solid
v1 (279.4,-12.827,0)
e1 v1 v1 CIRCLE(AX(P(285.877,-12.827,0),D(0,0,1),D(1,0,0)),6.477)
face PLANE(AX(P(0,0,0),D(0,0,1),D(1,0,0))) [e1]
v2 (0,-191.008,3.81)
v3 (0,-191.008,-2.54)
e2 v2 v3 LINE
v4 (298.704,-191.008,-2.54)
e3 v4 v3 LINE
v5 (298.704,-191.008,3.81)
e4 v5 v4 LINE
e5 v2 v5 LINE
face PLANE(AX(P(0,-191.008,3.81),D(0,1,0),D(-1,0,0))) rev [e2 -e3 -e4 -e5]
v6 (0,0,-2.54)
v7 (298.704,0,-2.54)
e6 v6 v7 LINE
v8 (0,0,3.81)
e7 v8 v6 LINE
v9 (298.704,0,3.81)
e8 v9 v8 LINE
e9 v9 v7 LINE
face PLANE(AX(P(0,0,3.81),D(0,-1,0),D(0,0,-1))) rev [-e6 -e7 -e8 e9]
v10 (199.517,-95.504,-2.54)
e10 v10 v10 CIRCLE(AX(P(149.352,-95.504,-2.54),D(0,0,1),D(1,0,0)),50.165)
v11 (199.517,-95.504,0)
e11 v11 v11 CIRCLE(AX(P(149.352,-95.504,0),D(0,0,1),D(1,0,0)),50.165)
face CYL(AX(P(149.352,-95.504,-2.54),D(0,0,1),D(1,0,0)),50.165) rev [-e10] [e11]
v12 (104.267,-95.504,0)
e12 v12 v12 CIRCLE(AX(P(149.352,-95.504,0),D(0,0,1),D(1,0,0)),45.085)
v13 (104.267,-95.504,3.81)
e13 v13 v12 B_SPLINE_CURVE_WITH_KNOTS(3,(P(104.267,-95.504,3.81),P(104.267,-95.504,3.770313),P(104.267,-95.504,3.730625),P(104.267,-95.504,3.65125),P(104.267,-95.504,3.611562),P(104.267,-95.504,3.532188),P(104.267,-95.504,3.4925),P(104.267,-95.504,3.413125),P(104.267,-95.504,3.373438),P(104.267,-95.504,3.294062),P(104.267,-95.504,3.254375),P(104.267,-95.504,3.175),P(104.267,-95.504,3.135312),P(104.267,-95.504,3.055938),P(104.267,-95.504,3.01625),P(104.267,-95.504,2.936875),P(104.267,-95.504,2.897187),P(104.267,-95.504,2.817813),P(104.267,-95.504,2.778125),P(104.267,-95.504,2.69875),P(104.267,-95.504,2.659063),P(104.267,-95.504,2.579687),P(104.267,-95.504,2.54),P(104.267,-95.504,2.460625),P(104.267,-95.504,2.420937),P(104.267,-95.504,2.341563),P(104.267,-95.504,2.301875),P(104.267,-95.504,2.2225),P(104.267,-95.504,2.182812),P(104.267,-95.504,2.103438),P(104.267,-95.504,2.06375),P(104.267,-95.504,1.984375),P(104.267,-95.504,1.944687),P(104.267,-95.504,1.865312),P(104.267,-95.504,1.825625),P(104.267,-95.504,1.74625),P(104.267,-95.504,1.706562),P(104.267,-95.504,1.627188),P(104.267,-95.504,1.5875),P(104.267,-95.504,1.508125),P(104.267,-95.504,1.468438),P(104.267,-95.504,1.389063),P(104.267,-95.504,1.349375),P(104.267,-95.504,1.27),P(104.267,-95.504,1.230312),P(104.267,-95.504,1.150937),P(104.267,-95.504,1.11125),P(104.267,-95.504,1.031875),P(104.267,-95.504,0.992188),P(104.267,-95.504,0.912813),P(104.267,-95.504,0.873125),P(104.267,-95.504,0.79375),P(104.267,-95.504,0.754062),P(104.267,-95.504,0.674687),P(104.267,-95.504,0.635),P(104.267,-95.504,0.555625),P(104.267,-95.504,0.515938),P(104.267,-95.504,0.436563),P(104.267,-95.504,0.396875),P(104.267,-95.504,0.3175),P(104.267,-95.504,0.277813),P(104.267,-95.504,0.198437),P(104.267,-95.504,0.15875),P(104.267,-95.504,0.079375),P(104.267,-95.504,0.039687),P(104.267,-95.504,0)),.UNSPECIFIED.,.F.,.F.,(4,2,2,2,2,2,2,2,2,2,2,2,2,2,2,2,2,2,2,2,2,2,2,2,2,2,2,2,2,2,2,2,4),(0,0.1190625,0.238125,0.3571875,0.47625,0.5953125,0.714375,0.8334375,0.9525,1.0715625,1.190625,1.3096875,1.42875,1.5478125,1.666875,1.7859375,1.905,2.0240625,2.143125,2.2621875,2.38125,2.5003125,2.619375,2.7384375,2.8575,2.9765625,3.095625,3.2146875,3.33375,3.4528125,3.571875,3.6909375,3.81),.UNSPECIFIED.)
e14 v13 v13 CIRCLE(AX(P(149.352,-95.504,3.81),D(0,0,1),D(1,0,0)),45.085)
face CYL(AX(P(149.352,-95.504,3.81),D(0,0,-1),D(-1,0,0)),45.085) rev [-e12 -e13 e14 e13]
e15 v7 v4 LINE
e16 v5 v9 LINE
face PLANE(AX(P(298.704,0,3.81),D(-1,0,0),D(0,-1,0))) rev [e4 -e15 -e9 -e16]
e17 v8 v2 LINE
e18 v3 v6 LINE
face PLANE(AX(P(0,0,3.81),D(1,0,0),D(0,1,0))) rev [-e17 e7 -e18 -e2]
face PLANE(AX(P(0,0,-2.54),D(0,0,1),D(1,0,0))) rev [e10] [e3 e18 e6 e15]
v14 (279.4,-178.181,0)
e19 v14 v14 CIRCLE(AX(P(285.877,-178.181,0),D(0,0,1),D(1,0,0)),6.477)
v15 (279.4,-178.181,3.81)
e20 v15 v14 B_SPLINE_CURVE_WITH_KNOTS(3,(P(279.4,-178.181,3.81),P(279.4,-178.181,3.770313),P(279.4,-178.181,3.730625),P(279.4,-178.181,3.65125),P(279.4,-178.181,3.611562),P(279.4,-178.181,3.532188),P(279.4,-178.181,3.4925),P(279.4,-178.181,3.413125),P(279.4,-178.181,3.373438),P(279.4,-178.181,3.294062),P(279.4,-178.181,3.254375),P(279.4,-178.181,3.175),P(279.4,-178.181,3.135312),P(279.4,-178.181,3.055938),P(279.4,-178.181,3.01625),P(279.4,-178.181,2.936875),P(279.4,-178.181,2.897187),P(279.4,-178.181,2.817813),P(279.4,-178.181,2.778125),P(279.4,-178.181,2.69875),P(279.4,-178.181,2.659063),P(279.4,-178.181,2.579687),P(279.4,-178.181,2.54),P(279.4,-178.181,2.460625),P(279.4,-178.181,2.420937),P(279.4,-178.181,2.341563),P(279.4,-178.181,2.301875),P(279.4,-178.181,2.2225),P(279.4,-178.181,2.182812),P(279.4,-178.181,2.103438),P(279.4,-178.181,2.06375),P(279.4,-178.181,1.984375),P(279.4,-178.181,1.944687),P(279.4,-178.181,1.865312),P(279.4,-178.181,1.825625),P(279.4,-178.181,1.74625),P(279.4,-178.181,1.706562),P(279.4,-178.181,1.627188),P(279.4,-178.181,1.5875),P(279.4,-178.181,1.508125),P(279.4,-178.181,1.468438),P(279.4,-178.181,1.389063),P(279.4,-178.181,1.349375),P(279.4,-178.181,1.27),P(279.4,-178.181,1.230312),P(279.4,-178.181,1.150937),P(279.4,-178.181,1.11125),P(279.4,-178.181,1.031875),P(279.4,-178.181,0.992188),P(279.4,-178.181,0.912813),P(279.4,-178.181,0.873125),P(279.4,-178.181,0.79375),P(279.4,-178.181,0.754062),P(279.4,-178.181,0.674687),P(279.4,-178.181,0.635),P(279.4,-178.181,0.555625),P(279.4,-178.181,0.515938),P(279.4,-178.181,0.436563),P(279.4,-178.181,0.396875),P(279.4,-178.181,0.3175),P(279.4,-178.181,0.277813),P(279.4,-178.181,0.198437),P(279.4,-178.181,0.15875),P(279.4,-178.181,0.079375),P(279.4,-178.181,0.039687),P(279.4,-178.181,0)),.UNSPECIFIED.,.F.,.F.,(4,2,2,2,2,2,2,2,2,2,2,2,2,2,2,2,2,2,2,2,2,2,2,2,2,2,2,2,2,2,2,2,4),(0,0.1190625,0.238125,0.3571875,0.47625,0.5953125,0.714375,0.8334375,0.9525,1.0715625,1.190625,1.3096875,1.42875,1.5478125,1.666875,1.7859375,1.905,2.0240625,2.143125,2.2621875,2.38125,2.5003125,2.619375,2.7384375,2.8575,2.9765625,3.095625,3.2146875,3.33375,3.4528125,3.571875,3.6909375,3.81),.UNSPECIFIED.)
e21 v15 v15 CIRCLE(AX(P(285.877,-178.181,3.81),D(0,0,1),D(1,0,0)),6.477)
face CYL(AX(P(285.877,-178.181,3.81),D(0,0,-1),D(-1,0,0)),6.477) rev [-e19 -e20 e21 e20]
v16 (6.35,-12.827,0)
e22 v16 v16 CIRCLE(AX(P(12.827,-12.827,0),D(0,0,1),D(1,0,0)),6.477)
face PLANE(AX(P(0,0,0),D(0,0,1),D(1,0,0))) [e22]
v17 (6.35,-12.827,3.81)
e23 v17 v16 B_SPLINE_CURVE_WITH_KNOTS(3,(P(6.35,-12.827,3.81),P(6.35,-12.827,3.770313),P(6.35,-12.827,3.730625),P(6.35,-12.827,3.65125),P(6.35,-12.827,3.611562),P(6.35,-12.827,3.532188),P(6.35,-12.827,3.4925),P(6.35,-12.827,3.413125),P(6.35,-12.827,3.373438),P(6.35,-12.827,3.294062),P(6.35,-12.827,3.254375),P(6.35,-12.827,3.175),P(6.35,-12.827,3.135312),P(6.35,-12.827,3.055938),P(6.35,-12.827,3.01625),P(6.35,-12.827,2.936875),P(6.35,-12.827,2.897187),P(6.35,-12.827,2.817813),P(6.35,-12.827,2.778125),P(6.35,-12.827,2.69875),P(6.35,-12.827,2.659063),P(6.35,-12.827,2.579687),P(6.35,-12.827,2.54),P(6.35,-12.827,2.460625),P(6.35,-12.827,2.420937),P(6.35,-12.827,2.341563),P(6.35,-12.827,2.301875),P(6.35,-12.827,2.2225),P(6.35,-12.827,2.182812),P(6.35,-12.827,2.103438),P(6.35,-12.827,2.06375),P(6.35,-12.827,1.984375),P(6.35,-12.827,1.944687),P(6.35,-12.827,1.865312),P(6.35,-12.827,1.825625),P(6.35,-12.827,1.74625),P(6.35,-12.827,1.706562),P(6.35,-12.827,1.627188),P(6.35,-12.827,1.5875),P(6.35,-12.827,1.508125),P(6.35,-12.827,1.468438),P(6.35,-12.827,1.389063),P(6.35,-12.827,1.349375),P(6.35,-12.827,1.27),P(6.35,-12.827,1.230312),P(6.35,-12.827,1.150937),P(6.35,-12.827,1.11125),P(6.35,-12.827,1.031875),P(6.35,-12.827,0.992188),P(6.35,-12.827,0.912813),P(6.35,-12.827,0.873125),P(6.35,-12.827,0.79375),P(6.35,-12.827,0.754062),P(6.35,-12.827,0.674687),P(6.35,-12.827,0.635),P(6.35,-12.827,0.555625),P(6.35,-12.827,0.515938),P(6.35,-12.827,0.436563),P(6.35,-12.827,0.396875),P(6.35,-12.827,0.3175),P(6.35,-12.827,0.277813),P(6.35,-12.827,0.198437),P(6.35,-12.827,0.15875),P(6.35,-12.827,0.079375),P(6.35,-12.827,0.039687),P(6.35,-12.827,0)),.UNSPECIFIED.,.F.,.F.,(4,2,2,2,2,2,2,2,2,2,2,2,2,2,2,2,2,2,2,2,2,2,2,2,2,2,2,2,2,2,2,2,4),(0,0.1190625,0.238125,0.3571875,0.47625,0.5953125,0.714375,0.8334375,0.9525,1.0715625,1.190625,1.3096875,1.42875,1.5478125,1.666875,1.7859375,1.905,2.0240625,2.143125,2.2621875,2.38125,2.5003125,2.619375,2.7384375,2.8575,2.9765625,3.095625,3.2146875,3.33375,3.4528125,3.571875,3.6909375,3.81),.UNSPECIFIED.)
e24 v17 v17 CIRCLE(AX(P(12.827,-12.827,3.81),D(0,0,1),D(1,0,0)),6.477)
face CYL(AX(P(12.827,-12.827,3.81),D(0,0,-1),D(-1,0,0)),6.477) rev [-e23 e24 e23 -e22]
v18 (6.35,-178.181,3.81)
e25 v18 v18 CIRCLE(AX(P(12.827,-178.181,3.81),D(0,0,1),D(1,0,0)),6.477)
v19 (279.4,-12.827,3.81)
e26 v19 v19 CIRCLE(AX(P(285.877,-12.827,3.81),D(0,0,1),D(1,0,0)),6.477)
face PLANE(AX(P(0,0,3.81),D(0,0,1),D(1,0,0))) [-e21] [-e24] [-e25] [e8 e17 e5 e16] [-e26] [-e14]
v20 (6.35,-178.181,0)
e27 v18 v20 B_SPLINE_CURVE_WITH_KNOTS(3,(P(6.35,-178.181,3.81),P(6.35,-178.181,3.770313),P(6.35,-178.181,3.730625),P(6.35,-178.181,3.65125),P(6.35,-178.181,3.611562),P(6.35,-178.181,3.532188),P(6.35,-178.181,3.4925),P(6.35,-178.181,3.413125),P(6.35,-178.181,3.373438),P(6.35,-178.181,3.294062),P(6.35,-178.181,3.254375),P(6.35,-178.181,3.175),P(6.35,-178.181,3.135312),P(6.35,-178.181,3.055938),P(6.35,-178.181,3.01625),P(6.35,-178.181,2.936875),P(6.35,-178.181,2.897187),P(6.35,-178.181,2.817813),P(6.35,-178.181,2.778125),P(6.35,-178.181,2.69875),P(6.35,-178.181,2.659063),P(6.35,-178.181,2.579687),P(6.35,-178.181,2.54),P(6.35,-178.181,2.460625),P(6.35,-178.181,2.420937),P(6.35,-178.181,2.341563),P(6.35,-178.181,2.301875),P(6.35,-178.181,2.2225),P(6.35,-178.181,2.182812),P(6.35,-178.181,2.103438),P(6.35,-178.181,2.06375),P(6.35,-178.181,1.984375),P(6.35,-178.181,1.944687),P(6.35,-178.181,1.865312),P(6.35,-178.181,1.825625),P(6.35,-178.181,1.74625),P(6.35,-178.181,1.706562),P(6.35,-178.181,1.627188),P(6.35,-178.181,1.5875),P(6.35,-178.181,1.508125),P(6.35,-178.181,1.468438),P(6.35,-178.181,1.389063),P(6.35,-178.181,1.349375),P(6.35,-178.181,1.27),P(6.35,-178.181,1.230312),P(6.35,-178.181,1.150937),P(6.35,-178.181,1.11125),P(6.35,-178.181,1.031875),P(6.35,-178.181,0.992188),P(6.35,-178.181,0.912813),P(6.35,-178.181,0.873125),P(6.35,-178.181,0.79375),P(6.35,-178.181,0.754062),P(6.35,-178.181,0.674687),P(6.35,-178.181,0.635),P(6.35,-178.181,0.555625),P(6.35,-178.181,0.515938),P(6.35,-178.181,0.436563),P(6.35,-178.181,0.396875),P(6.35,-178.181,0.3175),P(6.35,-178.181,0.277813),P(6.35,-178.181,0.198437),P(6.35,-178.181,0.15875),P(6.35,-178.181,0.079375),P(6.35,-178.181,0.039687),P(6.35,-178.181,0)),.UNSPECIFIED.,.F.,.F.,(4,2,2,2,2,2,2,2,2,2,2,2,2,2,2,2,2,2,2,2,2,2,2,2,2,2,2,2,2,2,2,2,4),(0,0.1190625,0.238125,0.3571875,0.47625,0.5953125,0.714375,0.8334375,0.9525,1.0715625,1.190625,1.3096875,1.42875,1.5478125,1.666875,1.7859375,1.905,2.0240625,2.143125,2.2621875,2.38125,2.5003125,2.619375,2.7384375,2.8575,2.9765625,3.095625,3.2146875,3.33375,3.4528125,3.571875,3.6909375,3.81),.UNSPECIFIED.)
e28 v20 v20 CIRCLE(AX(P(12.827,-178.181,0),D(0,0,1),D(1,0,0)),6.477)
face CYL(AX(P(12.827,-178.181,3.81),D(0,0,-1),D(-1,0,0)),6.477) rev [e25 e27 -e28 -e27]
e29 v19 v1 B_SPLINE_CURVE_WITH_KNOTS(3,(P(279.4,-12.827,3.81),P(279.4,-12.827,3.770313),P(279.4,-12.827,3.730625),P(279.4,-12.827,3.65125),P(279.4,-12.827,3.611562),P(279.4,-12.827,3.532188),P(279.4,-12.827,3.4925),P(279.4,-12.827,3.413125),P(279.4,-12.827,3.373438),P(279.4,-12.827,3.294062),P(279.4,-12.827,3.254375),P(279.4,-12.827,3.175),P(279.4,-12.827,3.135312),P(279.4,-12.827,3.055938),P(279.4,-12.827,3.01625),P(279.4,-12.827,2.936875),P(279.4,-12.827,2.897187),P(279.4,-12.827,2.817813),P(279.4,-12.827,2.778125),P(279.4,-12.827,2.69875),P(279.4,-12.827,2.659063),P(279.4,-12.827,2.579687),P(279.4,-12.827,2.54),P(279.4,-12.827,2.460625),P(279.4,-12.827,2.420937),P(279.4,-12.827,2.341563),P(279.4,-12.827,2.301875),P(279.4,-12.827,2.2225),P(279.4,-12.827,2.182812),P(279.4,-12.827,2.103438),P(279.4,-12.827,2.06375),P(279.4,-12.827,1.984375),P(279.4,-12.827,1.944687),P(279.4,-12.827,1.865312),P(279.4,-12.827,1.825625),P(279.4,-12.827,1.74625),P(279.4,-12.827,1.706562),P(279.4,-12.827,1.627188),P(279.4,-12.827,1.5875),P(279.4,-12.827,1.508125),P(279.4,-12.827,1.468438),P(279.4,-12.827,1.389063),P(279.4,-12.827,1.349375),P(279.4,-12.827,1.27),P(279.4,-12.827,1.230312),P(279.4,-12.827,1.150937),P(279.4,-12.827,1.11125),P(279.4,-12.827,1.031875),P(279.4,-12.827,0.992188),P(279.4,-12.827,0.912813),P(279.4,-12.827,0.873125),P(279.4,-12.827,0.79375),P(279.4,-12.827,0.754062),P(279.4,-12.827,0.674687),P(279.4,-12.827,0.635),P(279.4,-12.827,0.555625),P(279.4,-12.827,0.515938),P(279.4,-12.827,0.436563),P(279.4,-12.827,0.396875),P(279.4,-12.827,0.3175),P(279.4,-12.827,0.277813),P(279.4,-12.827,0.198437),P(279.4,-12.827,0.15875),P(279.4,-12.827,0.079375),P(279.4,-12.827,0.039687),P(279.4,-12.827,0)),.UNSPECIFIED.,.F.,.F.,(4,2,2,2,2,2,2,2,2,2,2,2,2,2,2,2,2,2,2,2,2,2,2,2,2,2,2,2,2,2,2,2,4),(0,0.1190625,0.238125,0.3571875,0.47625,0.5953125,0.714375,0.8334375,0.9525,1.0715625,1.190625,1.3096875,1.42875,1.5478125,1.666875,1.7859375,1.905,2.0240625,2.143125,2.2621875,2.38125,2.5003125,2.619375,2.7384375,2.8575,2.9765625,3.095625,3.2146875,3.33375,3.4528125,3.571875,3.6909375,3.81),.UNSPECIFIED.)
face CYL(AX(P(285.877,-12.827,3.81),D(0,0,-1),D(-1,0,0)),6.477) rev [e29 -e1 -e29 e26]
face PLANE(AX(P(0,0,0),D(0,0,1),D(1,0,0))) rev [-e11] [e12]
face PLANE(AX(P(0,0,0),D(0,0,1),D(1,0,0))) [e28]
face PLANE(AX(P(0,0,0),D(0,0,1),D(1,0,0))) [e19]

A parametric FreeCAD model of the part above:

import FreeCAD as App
import Part
import Sketcher
Q = App.Units.Quantity

doc = App.newDocument("Part")
body = doc.addObject("PartDesign::Body", "Body")

# Sketch on XY plane
sketch1 = body.newObject("Sketcher::SketchObject", "Sketch")
sketch1.AttachmentSupport = (doc.getObject("XY_Plane"), [""])
sketch1.MapMode = "FlatFace"
sketch1.addGeometry(Part.LineSegment(App.Vector(0, 0, 0), App.Vector(0, -191, 0)), False)
sketch1.addGeometry(Part.LineSegment(App.Vector(0, -191, 0), App.Vector(299, -191, 0)), False)
sketch1.addGeometry(Part.LineSegment(App.Vector(299, -191, 0), App.Vector(299, 0, 0)), False)
sketch1.addGeometry(Part.LineSegment(App.Vector(299, 0, 0), App.Vector(0, 0, 0)), False)
sketch1.addGeometry(Part.Circle(App.Vector(13, -178, 0), App.Vector(0, 0, 1), 6), False)
sketch1.addGeometry(Part.Circle(App.Vector(286, -178, 0), App.Vector(0, 0, 1), 6), False)
sketch1.addGeometry(Part.Circle(App.Vector(13, -13, 0), App.Vector(0, 0, 1), 6), False)
sketch1.addGeometry(Part.Circle(App.Vector(149, -96, 0), App.Vector(0, 0, 1), 45), False)
sketch1.addGeometry(Part.Circle(App.Vector(286, -13, 0), App.Vector(0, 0, 1), 6), False)
sketch1.addConstraint(Sketcher.Constraint("Coincident", 0, 2, 1, 1))
sketch1.addConstraint(Sketcher.Constraint("Coincident", 1, 2, 2, 1))
sketch1.addConstraint(Sketcher.Constraint("Coincident", 2, 2, 3, 1))
sketch1.addConstraint(Sketcher.Constraint("Coincident", 3, 2, 0, 1))
sketch1.addConstraint(Sketcher.Constraint("Vertical", 0))
sketch1.addConstraint(Sketcher.Constraint("Horizontal", 1))
sketch1.addConstraint(Sketcher.Constraint("Vertical", 2))
sketch1.addConstraint(Sketcher.Constraint("Horizontal", 3))
sketch1.addConstraint(Sketcher.Constraint("Coincident", 3, 2, -1, 1))
sketch1.addConstraint(Sketcher.Constraint("Equal", 4, 5))
sketch1.addConstraint(Sketcher.Constraint("Equal", 5, 6))
sketch1.addConstraint(Sketcher.Constraint("Equal", 6, 8))
sketch1.addConstraint(Sketcher.Constraint("Horizontal", 4, 3, 5, 3))
sketch1.addConstraint(Sketcher.Constraint("Horizontal", 6, 3, 8, 3))
sketch1.addConstraint(Sketcher.Constraint("Vertical", 4, 3, 6, 3))
sketch1.addConstraint(Sketcher.Constraint("Vertical", 5, 3, 8, 3))
sketch1.addConstraint(Sketcher.Constraint("Diameter", 4, Q("0.51 in")))
sketch1.addConstraint(Sketcher.Constraint("Diameter", 7, Q("3.55 in")))
sketch1.addConstraint(Sketcher.Constraint("DistanceX", 1, 1, 1, 2, Q("11.76 in")))
sketch1.addConstraint(Sketcher.Constraint("DistanceY", 0, 2, 0, 1, Q("7.52 in")))
sketch1.addConstraint(Sketcher.Constraint("DistanceX", -1, 1, 7, 3, Q("5.88 in")))
sketch1.addConstraint(Sketcher.Constraint("DistanceY", 7, 3, -1, 1, Q("3.76 in")))
sketch1.addConstraint(Sketcher.Constraint("DistanceX", 4, 3, 5, 3, Q("10.75 in")))
sketch1.addConstraint(Sketcher.Constraint("DistanceY", 4, 3, 6, 3, Q("6.51 in")))
sketch1.addConstraint(Sketcher.Constraint("DistanceX", -1, 1, 4, 3, Q("0.505 in")))
sketch1.addConstraint(Sketcher.Constraint("DistanceY", 4, 3, -1, 1, Q("7.015 in")))
pad1 = body.newObject("PartDesign::Pad", "Pad")
pad1.Profile = sketch1
pad1.Length = Q("0.15 in")

# Sketch on XY plane
sketch2 = body.newObject("Sketcher::SketchObject", "Sketch001")
sketch2.AttachmentSupport = (doc.getObject("XY_Plane"), [""])
sketch2.MapMode = "FlatFace"
sketch2.addGeometry(Part.LineSegment(App.Vector(299, 0, 0), App.Vector(299, -191, 0)), False)
sketch2.addGeometry(Part.LineSegment(App.Vector(299, -191, 0), App.Vector(0, -191, 0)), False)
sketch2.addGeometry(Part.LineSegment(App.Vector(0, -191, 0), App.Vector(0, 0, 0)), False)
sketch2.addGeometry(Part.LineSegment(App.Vector(0, 0, 0), App.Vector(299, 0, 0)), False)
sketch2.addGeometry(Part.Circle(App.Vector(149, -96, 0), App.Vector(0, 0, 1), 48), False)
sketch2.addConstraint(Sketcher.Constraint("Coincident", 0, 2, 1, 1))
sketch2.addConstraint(Sketcher.Constraint("Coincident", 1, 2, 2, 1))
sketch2.addConstraint(Sketcher.Constraint("Coincident", 2, 2, 3, 1))
sketch2.addConstraint(Sketcher.Constraint("Coincident", 3, 2, 0, 1))
sketch2.addConstraint(Sketcher.Constraint("Vertical", 0))
sketch2.addConstraint(Sketcher.Constraint("Horizontal", 1))
sketch2.addConstraint(Sketcher.Constraint("Vertical", 2))
sketch2.addConstraint(Sketcher.Constraint("Horizontal", 3))
sketch2.addConstraint(Sketcher.Constraint("Coincident", 2, 2, -1, 1))
sketch2.addConstraint(Sketcher.Constraint("Diameter", 4, Q("3.75 in")))
sketch2.addConstraint(Sketcher.Constraint("DistanceX", 1, 2, 1, 1, Q("11.76 in")))
sketch2.addConstraint(Sketcher.Constraint("DistanceY", 0, 2, 0, 1, Q("7.52 in")))
sketch2.addConstraint(Sketcher.Constraint("DistanceX", -1, 1, 4, 3, Q("5.88 in")))
sketch2.addConstraint(Sketcher.Constraint("DistanceY", 4, 3, -1, 1, Q("3.76 in")))
pad2 = body.newObject("PartDesign::Pad", "Pad001")
pad2.Profile = sketch2
pad2.Length = Q("0.1 in")
pad2.Reversed = True

# Sketch on XY plane
sketch3 = body.newObject("Sketcher::SketchObject", "Sketch002")
sketch3.AttachmentSupport = (doc.getObject("XY_Plane"), [""])
sketch3.MapMode = "FlatFace"
sketch3.addGeometry(Part.Circle(App.Vector(149, -96, 0), App.Vector(0, 0, 1), 50), False)
sketch3.addConstraint(Sketcher.Constraint("Diameter", 0, Q("3.95 in")))
sketch3.addConstraint(Sketcher.Constraint("DistanceX", -1, 1, 0, 3, Q("5.88 in")))
sketch3.addConstraint(Sketcher.Constraint("DistanceY", 0, 3, -1, 1, Q("3.76 in")))
pocket1 = body.newObject("PartDesign::Pocket", "Pocket")
pocket1.Profile = sketch3
pocket1.Length = Q("0.1 in")

doc.recompute()
